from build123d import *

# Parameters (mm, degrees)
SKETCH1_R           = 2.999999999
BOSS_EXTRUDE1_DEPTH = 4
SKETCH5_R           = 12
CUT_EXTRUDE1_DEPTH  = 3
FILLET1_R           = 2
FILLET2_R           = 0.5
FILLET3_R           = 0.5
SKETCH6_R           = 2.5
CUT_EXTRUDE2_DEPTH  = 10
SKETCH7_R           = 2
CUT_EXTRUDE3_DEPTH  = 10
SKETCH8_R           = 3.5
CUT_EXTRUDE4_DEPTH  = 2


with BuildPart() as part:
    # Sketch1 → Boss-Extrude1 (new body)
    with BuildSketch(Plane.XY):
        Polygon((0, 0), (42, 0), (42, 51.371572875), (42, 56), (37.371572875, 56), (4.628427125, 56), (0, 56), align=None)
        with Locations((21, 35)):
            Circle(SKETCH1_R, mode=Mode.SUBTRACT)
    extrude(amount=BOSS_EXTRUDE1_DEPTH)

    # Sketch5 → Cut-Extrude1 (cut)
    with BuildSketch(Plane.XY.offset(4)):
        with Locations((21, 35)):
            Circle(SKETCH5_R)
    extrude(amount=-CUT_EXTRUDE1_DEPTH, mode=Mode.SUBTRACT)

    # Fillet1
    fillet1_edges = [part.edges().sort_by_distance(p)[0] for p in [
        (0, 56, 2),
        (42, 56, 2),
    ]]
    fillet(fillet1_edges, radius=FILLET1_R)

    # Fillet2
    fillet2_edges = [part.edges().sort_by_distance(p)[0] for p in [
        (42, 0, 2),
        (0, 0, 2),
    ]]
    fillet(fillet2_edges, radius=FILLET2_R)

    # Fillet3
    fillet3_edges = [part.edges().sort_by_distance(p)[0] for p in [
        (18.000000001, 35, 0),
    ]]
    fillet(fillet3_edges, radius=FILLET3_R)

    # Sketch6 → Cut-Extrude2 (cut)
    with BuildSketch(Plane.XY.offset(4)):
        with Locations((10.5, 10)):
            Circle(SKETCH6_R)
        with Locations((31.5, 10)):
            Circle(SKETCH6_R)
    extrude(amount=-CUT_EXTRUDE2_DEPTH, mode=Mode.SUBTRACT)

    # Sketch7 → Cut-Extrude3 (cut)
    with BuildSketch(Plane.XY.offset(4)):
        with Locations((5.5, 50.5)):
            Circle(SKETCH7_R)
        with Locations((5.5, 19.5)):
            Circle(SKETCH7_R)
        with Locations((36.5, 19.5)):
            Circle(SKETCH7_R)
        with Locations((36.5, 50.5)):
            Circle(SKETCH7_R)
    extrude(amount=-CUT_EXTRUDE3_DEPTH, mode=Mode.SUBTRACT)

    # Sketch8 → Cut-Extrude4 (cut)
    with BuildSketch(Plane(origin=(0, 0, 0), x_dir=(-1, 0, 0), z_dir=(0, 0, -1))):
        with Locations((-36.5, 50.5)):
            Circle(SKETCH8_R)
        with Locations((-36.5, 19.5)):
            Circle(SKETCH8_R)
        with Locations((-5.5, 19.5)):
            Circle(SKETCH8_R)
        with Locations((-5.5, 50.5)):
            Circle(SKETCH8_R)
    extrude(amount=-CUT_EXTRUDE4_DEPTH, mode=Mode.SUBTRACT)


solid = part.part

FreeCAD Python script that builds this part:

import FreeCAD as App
import Part
import Sketcher
from FreeCAD import Vector


def edges_at(feature, points):
    """Names of the edges that pass closest to the given points."""
    edges = feature.Shape.Edges
    near = lambda p: min(range(len(edges)), key=lambda i: edges[i].distToShape(Part.Vertex(*p))[0])
    return sorted({f"Edge{near(p) + 1}" for p in points})

doc = App.newDocument("Part")
body = doc.addObject("PartDesign::Body", "Body")

# Sketch on XY plane
sketch1 = body.newObject("Sketcher::SketchObject", "Sketch")
sketch1.AttachmentSupport = (doc.getObject("XY_Plane"), [""])
sketch1.MapMode = "FlatFace"
sketch1.addGeometry(Part.LineSegment(Vector(0, 0, 0), Vector(42, 0, 0)), False)
sketch1.addGeometry(Part.LineSegment(Vector(42, 0, 0), Vector(42, 56, 0)), False)
sketch1.addGeometry(Part.LineSegment(Vector(42, 56, 0), Vector(0, 56, 0)), False)
sketch1.addGeometry(Part.LineSegment(Vector(0, 56, 0), Vector(0, 0, 0)), False)
sketch1.addGeometry(Part.Circle(Vector(21, 35, 0), Vector(0, 0, 1), 3), False)
sketch1.addConstraint(Sketcher.Constraint("Coincident", 0, 2, 1, 1))
sketch1.addConstraint(Sketcher.Constraint("Coincident", 1, 2, 2, 1))
sketch1.addConstraint(Sketcher.Constraint("Coincident", 2, 2, 3, 1))
sketch1.addConstraint(Sketcher.Constraint("Coincident", 3, 2, 0, 1))
sketch1.addConstraint(Sketcher.Constraint("Horizontal", 0))
sketch1.addConstraint(Sketcher.Constraint("Vertical", 1))
sketch1.addConstraint(Sketcher.Constraint("Horizontal", 2))
sketch1.addConstraint(Sketcher.Constraint("Vertical", 3))
sketch1.addConstraint(Sketcher.Constraint("Coincident", 3, 2, -1, 1))
sketch1.addConstraint(Sketcher.Constraint("Diameter", 4, 6.0))
sketch1.addConstraint(Sketcher.Constraint("DistanceX", 0, 1, 0, 2, 42.0))
sketch1.addConstraint(Sketcher.Constraint("DistanceY", 1, 1, 1, 2, 56.0))
sketch1.addConstraint(Sketcher.Constraint("DistanceX", -1, 1, 4, 3, 21.0))
sketch1.addConstraint(Sketcher.Constraint("DistanceY", -1, 1, 4, 3, 35.0))
pad1 = body.newObject("PartDesign::Pad", "Pad")
pad1.Profile = sketch1
pad1.Length = 4

# Sketch on XY plane
sketch2 = body.newObject("Sketcher::SketchObject", "Sketch001")
sketch2.AttachmentSupport = (doc.getObject("XY_Plane"), [""])
sketch2.MapMode = "FlatFace"
sketch2.AttachmentOffset = App.Placement(Vector(0, 0, 4), App.Rotation())
sketch2.addGeometry(Part.Circle(Vector(21, 35, 0), Vector(0, 0, 1), 12), False)
sketch2.addConstraint(Sketcher.Constraint("Diameter", 0, 24.0))
sketch2.addConstraint(Sketcher.Constraint("DistanceX", -1, 1, 0, 3, 21.0))
sketch2.addConstraint(Sketcher.Constraint("DistanceY", -1, 1, 0, 3, 35.0))
pocket1 = body.newObject("PartDesign::Pocket", "Pocket")
pocket1.Profile = sketch2
pocket1.Length = 3
doc.recompute()

fillet = body.newObject("PartDesign::Fillet", "Fillet")
fillet.Base = (pocket1, edges_at(pocket1, [(0, 56, 2), (42, 56, 2)]))
fillet.Radius = 2
doc.recompute()

fillet2 = body.newObject("PartDesign::Fillet", "Fillet001")
fillet2.Base = (fillet, edges_at(fillet, [(42, 0, 2), (0, 0, 2)]))
fillet2.Radius = 0.5
doc.recompute()

fillet3 = body.newObject("PartDesign::Fillet", "Fillet002")
fillet3.Base = (fillet2, edges_at(fillet2, [(18, 35, 0)]))
fillet3.Radius = 0.5

# Sketch on XY plane
sketch3 = body.newObject("Sketcher::SketchObject", "Sketch002")
sketch3.AttachmentSupport = (doc.getObject("XY_Plane"), [""])
sketch3.MapMode = "FlatFace"
sketch3.AttachmentOffset = App.Placement(Vector(0, 0, 4), App.Rotation())
sketch3.addGeometry(Part.Circle(Vector(10.5, 10, 0), Vector(0, 0, 1), 2.5), False)
sketch3.addGeometry(Part.Circle(Vector(31.5, 10, 0), Vector(0, 0, 1), 2.5), False)
sketch3.addConstraint(Sketcher.Constraint("Equal", 0, 1))
sketch3.addConstraint(Sketcher.Constraint("Horizontal", 0, 3, 1, 3))
sketch3.addConstraint(Sketcher.Constraint("Diameter", 0, 5.0))
sketch3.addConstraint(Sketcher.Constraint("DistanceY", -1, 1, 0, 3, 10.0))
sketch3.addConstraint(Sketcher.Constraint("DistanceX", 0, 3, 1, 3, 21.0))
sketch3.addConstraint(Sketcher.Constraint("DistanceX", -1, 1, 0, 3, 10.5))
pocket2 = body.newObject("PartDesign::Pocket", "Pocket001")
pocket2.Profile = sketch3
pocket2.Length = 10

# Sketch on XY plane
sketch4 = body.newObject("Sketcher::SketchObject", "Sketch003")
sketch4.AttachmentSupport = (doc.getObject("XY_Plane"), [""])
sketch4.MapMode = "FlatFace"
sketch4.AttachmentOffset = App.Placement(Vector(0, 0, 4), App.Rotation())
sketch4.addGeometry(Part.Circle(Vector(5.5, 50.5, 0), Vector(0, 0, 1), 2), False)
sketch4.addGeometry(Part.Circle(Vector(5.5, 19.5, 0), Vector(0, 0, 1), 2), False)
sketch4.addGeometry(Part.Circle(Vector(36.5, 19.5, 0), Vector(0, 0, 1), 2), False)
sketch4.addGeometry(Part.Circle(Vector(36.5, 50.5, 0), Vector(0, 0, 1), 2), False)
sketch4.addConstraint(Sketcher.Constraint("Equal", 0, 1))
sketch4.addConstraint(Sketcher.Constraint("Equal", 1, 2))
sketch4.addConstraint(Sketcher.Constraint("Equal", 2, 3))
sketch4.addConstraint(Sketcher.Constraint("Horizontal", 1, 3, 2, 3))
sketch4.addConstraint(Sketcher.Constraint("Horizontal", 0, 3, 3, 3))
sketch4.addConstraint(Sketcher.Constraint("Vertical", 0, 3, 1, 3))
sketch4.addConstraint(Sketcher.Constraint("Vertical", 2, 3, 3, 3))
sketch4.addConstraint(Sketcher.Constraint("Diameter", 0, 4.0))
sketch4.addConstraint(Sketcher.Constraint("DistanceY", 1, 3, 0, 3, 31.0))
sketch4.addConstraint(Sketcher.Constraint("DistanceX", 1, 3, 2, 3, 31.0))
sketch4.addConstraint(Sketcher.Constraint("DistanceX", -1, 1, 0, 3, 5.5))
sketch4.addConstraint(Sketcher.Constraint("DistanceY", -1, 1, 0, 3, 50.5))
pocket3 = body.newObject("PartDesign::Pocket", "Pocket002")
pocket3.Profile = sketch4
pocket3.Length = 10

# Sketch on XY plane
sketch5 = body.newObject("Sketcher::SketchObject", "Sketch004")
sketch5.AttachmentSupport = (doc.getObject("XY_Plane"), [""])
sketch5.MapMode = "FlatFace"
sketch5.addGeometry(Part.Circle(Vector(36.5, 50.5, 0), Vector(0, 0, 1), 3.5), False)
sketch5.addGeometry(Part.Circle(Vector(36.5, 19.5, 0), Vector(0, 0, 1), 3.5), False)
sketch5.addGeometry(Part.Circle(Vector(5.5, 19.5, 0), Vector(0, 0, 1), 3.5), False)
sketch5.addGeometry(Part.Circle(Vector(5.5, 50.5, 0), Vector(0, 0, 1), 3.5), False)
sketch5.addConstraint(Sketcher.Constraint("Equal", 0, 1))
sketch5.addConstraint(Sketcher.Constraint("Equal", 1, 2))
sketch5.addConstraint(Sketcher.Constraint("Equal", 2, 3))
sketch5.addConstraint(Sketcher.Constraint("Horizontal", 1, 3, 2, 3))
sketch5.addConstraint(Sketcher.Constraint("Horizontal", 0, 3, 3, 3))
sketch5.addConstraint(Sketcher.Constraint("Vertical", 0, 3, 1, 3))
sketch5.addConstraint(Sketcher.Constraint("Vertical", 2, 3, 3, 3))
sketch5.addConstraint(Sketcher.Constraint("Diameter", 0, 7.0))
sketch5.addConstraint(Sketcher.Constraint("DistanceY", 1, 3, 0, 3, 31.0))
sketch5.addConstraint(Sketcher.Constraint("DistanceX", 2, 3, 1, 3, 31.0))
sketch5.addConstraint(Sketcher.Constraint("DistanceX", -1, 1, 0, 3, 36.5))
sketch5.addConstraint(Sketcher.Constraint("DistanceY", -1, 1, 0, 3, 50.5))
pocket4 = body.newObject("PartDesign::Pocket", "Pocket003")
pocket4.Profile = sketch5
pocket4.Length = 2
pocket4.Reversed = True

doc.recompute()
